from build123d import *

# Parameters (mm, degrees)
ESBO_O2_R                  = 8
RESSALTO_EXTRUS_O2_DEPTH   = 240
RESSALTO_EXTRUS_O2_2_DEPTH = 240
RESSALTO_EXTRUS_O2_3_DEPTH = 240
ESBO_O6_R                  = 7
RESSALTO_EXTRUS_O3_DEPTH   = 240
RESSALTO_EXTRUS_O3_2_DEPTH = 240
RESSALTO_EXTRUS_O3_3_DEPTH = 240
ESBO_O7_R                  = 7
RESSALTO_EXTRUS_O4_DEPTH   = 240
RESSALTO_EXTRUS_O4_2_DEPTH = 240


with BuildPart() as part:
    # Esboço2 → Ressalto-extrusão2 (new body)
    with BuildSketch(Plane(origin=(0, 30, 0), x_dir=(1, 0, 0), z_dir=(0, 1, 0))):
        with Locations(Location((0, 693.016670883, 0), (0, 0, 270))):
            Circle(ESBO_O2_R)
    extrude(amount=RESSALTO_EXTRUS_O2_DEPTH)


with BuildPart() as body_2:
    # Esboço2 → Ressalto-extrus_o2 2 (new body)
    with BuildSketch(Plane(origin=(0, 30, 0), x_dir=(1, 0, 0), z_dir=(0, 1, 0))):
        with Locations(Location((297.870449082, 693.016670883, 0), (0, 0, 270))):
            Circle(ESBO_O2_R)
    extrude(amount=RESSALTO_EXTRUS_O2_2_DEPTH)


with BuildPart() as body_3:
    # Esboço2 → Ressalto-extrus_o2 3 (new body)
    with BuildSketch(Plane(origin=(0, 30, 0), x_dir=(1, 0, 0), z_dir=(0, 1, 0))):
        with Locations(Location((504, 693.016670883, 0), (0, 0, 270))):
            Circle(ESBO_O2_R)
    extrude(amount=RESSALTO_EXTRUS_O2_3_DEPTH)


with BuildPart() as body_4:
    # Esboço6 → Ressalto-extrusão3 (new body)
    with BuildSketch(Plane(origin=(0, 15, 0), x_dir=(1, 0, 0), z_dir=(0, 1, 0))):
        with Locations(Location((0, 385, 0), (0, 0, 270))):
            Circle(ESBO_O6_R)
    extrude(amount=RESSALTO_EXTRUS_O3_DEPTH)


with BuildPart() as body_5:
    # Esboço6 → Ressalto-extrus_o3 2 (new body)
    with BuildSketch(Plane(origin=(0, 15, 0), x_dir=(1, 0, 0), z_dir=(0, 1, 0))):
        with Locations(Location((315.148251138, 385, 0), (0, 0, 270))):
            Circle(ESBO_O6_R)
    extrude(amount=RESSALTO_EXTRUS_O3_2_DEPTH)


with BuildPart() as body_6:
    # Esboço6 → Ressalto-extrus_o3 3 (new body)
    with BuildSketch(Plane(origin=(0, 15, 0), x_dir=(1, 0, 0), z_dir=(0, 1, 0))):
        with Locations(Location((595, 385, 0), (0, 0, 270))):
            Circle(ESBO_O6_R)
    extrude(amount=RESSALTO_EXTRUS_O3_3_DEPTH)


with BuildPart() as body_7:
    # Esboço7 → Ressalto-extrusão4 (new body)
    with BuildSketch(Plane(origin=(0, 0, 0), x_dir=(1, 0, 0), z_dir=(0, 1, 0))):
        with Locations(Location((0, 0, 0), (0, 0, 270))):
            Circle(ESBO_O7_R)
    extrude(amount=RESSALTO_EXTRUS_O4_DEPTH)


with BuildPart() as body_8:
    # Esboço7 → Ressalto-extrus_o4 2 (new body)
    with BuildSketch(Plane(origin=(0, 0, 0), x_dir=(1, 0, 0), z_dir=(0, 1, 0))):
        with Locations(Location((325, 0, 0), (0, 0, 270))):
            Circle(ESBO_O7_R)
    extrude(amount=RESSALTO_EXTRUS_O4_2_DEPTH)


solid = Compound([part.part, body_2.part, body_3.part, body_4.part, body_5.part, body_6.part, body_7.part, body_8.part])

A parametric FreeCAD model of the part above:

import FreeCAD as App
import Part
import Sketcher
from FreeCAD import Vector
Q = App.Units.Quantity

doc = App.newDocument("Part")
body = doc.addObject("PartDesign::Body", "Body")

# Sketch on XZ plane
sketch1 = body.newObject("Sketcher::SketchObject", "Sketch")
sketch1.AttachmentSupport = (doc.getObject("XZ_Plane"), [""])
sketch1.MapMode = "FlatFace"
sketch1.AttachmentOffset = App.Placement(Vector(0, 0, -30), App.Rotation())
sketch1.addGeometry(Part.Circle(Vector(0, -693.016671, 0), Vector(0, 0, 1), 8), False)
sketch1.addConstraint([
    Sketcher.Constraint("PointOnObject", 0, 3, -2),
    Sketcher.Constraint("Diameter", 0, Q("16 mm")),
    Sketcher.Constraint("DistanceY", 0, 3, -1, 1, Q("693.016671 mm")),
])
pad1 = body.newObject("PartDesign::Pad", "Pad")
pad1.Profile = sketch1
pad1.Length = 240
pad1.Reversed = True
body2 = doc.addObject("PartDesign::Body", "Body001")

# Sketch on XZ plane
sketch2 = body2.newObject("Sketcher::SketchObject", "Sketch001")
sketch2.AttachmentSupport = (doc.getObject("XZ_Plane001"), [""])
sketch2.MapMode = "FlatFace"
sketch2.AttachmentOffset = App.Placement(Vector(0, 0, -30), App.Rotation())
sketch2.addGeometry(Part.Circle(Vector(297.870449, -693.016671, 0), Vector(0, 0, 1), 8), False)
sketch2.addConstraint([
    Sketcher.Constraint("Diameter", 0, Q("16 mm")),
    Sketcher.Constraint("DistanceX", -1, 1, 0, 3, Q("297.870449 mm")),
    Sketcher.Constraint("DistanceY", 0, 3, -1, 1, Q("693.016671 mm")),
])
pad2 = body2.newObject("PartDesign::Pad", "Pad001")
pad2.Profile = sketch2
pad2.Length = 240
pad2.Reversed = True
body3 = doc.addObject("PartDesign::Body", "Body002")

# Sketch on XZ plane
sketch3 = body3.newObject("Sketcher::SketchObject", "Sketch002")
sketch3.AttachmentSupport = (doc.getObject("XZ_Plane002"), [""])
sketch3.MapMode = "FlatFace"
sketch3.AttachmentOffset = App.Placement(Vector(0, 0, -30), App.Rotation())
sketch3.addGeometry(Part.Circle(Vector(504, -693.016671, 0), Vector(0, 0, 1), 8), False)
sketch3.addConstraint([
    Sketcher.Constraint("Diameter", 0, Q("16 mm")),
    Sketcher.Constraint("DistanceX", -1, 1, 0, 3, Q("504 mm")),
    Sketcher.Constraint("DistanceY", 0, 3, -1, 1, Q("693.016671 mm")),
])
pad3 = body3.newObject("PartDesign::Pad", "Pad002")
pad3.Profile = sketch3
pad3.Length = 240
pad3.Reversed = True
body4 = doc.addObject("PartDesign::Body", "Body003")

# Sketch on XZ plane
sketch4 = body4.newObject("Sketcher::SketchObject", "Sketch003")
sketch4.AttachmentSupport = (doc.getObject("XZ_Plane003"), [""])
sketch4.MapMode = "FlatFace"
sketch4.AttachmentOffset = App.Placement(Vector(0, 0, -15), App.Rotation())
sketch4.addGeometry(Part.Circle(Vector(0, -385, 0), Vector(0, 0, 1), 7), False)
sketch4.addConstraint([
    Sketcher.Constraint("PointOnObject", 0, 3, -2),
    Sketcher.Constraint("Diameter", 0, Q("14 mm")),
    Sketcher.Constraint("DistanceY", 0, 3, -1, 1, Q("385 mm")),
])
pad4 = body4.newObject("PartDesign::Pad", "Pad003")
pad4.Profile = sketch4
pad4.Length = 240
pad4.Reversed = True
body5 = doc.addObject("PartDesign::Body", "Body004")

# Sketch on XZ plane
sketch5 = body5.newObject("Sketcher::SketchObject", "Sketch004")
sketch5.AttachmentSupport = (doc.getObject("XZ_Plane004"), [""])
sketch5.MapMode = "FlatFace"
sketch5.AttachmentOffset = App.Placement(Vector(0, 0, -15), App.Rotation())
sketch5.addGeometry(Part.Circle(Vector(315.148251, -385, 0), Vector(0, 0, 1), 7), False)
sketch5.addConstraint([
    Sketcher.Constraint("Diameter", 0, Q("14 mm")),
    Sketcher.Constraint("DistanceY", 0, 3, -1, 1, Q("385 mm")),
    Sketcher.Constraint("DistanceX", -1, 1, 0, 3, Q("315.148251 mm")),
])
pad5 = body5.newObject("PartDesign::Pad", "Pad004")
pad5.Profile = sketch5
pad5.Length = 240
pad5.Reversed = True
body6 = doc.addObject("PartDesign::Body", "Body005")

# Sketch on XZ plane
sketch6 = body6.newObject("Sketcher::SketchObject", "Sketch005")
sketch6.AttachmentSupport = (doc.getObject("XZ_Plane005"), [""])
sketch6.MapMode = "FlatFace"
sketch6.AttachmentOffset = App.Placement(Vector(0, 0, -15), App.Rotation())
sketch6.addGeometry(Part.Circle(Vector(595, -385, 0), Vector(0, 0, 1), 7), False)
sketch6.addConstraint([
    Sketcher.Constraint("Diameter", 0, Q("14 mm")),
    Sketcher.Constraint("DistanceX", -1, 1, 0, 3, Q("595 mm")),
    Sketcher.Constraint("DistanceY", 0, 3, -1, 1, Q("385 mm")),
])
pad6 = body6.newObject("PartDesign::Pad", "Pad005")
pad6.Profile = sketch6
pad6.Length = 240
pad6.Reversed = True
body7 = doc.addObject("PartDesign::Body", "Body006")

# Sketch on XZ plane
sketch7 = body7.newObject("Sketcher::SketchObject", "Sketch006")
sketch7.AttachmentSupport = (doc.getObject("XZ_Plane006"), [""])
sketch7.MapMode = "FlatFace"
sketch7.addGeometry(Part.Circle(Vector(0, 0, 0), Vector(0, 0, 1), 7), False)
sketch7.addConstraint([
    Sketcher.Constraint("Coincident", 0, 3, -1, 1),
    Sketcher.Constraint("Diameter", 0, Q("14 mm")),
])
pad7 = body7.newObject("PartDesign::Pad", "Pad006")
pad7.Profile = sketch7
pad7.Length = 240
pad7.Reversed = True
body8 = doc.addObject("PartDesign::Body", "Body007")

# Sketch on XZ plane
sketch8 = body8.newObject("Sketcher::SketchObject", "Sketch007")
sketch8.AttachmentSupport = (doc.getObject("XZ_Plane007"), [""])
sketch8.MapMode = "FlatFace"
sketch8.addGeometry(Part.Circle(Vector(325, 0, 0), Vector(0, 0, 1), 7), False)
sketch8.addConstraint([
    Sketcher.Constraint("PointOnObject", 0, 3, -1),
    Sketcher.Constraint("Diameter", 0, Q("14 mm")),
    Sketcher.Constraint("DistanceX", -1, 1, 0, 3, Q("325 mm")),
])
pad8 = body8.newObject("PartDesign::Pad", "Pad007")
pad8.Profile = sketch8
pad8.Length = 240
pad8.Reversed = True

doc.recompute()
